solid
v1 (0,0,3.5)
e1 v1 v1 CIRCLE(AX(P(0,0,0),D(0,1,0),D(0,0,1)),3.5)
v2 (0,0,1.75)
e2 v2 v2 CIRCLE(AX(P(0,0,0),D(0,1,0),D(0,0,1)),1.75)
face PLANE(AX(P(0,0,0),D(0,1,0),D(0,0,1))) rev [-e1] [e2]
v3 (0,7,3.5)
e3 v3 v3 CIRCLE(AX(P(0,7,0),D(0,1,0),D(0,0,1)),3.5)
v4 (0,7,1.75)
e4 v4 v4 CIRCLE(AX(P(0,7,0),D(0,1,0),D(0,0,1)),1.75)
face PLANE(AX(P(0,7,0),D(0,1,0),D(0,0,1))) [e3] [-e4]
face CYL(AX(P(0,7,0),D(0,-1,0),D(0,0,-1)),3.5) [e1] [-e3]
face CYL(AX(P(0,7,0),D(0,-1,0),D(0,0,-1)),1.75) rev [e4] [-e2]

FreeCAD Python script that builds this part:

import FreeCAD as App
import Part
import Sketcher
from FreeCAD import Vector

doc = App.newDocument("Part")
body = doc.addObject("PartDesign::Body", "Body")

sketch1 = doc.addObject("Sketcher::SketchObject", "Sketch")
body.addObject(sketch1)
sketch1.AttachmentSupport = (doc.XZ_Plane, [""])
sketch1.MapMode = "FlatFace"
sketch1.addGeometry([
    Part.Circle(Vector(0, 0, 0), Vector(0, 0, 1), 3.5),
    Part.Circle(Vector(0, 0, 0), Vector(0, 0, 1), 1.8),
], False)
sketch1.addConstraint([
    Sketcher.Constraint("Coincident", 0, 3, -1, 1),
    Sketcher.Constraint("Coincident", 1, 3, -1, 1),
    Sketcher.Constraint("Diameter", 0, 7.0),
    Sketcher.Constraint("Diameter", 1, 3.5),
])
pad1 = doc.addObject("PartDesign::Pad", "Pad")
body.addObject(pad1)
pad1.Profile = sketch1
pad1.Length = 7
pad1.Reversed = True

doc.recompute()
